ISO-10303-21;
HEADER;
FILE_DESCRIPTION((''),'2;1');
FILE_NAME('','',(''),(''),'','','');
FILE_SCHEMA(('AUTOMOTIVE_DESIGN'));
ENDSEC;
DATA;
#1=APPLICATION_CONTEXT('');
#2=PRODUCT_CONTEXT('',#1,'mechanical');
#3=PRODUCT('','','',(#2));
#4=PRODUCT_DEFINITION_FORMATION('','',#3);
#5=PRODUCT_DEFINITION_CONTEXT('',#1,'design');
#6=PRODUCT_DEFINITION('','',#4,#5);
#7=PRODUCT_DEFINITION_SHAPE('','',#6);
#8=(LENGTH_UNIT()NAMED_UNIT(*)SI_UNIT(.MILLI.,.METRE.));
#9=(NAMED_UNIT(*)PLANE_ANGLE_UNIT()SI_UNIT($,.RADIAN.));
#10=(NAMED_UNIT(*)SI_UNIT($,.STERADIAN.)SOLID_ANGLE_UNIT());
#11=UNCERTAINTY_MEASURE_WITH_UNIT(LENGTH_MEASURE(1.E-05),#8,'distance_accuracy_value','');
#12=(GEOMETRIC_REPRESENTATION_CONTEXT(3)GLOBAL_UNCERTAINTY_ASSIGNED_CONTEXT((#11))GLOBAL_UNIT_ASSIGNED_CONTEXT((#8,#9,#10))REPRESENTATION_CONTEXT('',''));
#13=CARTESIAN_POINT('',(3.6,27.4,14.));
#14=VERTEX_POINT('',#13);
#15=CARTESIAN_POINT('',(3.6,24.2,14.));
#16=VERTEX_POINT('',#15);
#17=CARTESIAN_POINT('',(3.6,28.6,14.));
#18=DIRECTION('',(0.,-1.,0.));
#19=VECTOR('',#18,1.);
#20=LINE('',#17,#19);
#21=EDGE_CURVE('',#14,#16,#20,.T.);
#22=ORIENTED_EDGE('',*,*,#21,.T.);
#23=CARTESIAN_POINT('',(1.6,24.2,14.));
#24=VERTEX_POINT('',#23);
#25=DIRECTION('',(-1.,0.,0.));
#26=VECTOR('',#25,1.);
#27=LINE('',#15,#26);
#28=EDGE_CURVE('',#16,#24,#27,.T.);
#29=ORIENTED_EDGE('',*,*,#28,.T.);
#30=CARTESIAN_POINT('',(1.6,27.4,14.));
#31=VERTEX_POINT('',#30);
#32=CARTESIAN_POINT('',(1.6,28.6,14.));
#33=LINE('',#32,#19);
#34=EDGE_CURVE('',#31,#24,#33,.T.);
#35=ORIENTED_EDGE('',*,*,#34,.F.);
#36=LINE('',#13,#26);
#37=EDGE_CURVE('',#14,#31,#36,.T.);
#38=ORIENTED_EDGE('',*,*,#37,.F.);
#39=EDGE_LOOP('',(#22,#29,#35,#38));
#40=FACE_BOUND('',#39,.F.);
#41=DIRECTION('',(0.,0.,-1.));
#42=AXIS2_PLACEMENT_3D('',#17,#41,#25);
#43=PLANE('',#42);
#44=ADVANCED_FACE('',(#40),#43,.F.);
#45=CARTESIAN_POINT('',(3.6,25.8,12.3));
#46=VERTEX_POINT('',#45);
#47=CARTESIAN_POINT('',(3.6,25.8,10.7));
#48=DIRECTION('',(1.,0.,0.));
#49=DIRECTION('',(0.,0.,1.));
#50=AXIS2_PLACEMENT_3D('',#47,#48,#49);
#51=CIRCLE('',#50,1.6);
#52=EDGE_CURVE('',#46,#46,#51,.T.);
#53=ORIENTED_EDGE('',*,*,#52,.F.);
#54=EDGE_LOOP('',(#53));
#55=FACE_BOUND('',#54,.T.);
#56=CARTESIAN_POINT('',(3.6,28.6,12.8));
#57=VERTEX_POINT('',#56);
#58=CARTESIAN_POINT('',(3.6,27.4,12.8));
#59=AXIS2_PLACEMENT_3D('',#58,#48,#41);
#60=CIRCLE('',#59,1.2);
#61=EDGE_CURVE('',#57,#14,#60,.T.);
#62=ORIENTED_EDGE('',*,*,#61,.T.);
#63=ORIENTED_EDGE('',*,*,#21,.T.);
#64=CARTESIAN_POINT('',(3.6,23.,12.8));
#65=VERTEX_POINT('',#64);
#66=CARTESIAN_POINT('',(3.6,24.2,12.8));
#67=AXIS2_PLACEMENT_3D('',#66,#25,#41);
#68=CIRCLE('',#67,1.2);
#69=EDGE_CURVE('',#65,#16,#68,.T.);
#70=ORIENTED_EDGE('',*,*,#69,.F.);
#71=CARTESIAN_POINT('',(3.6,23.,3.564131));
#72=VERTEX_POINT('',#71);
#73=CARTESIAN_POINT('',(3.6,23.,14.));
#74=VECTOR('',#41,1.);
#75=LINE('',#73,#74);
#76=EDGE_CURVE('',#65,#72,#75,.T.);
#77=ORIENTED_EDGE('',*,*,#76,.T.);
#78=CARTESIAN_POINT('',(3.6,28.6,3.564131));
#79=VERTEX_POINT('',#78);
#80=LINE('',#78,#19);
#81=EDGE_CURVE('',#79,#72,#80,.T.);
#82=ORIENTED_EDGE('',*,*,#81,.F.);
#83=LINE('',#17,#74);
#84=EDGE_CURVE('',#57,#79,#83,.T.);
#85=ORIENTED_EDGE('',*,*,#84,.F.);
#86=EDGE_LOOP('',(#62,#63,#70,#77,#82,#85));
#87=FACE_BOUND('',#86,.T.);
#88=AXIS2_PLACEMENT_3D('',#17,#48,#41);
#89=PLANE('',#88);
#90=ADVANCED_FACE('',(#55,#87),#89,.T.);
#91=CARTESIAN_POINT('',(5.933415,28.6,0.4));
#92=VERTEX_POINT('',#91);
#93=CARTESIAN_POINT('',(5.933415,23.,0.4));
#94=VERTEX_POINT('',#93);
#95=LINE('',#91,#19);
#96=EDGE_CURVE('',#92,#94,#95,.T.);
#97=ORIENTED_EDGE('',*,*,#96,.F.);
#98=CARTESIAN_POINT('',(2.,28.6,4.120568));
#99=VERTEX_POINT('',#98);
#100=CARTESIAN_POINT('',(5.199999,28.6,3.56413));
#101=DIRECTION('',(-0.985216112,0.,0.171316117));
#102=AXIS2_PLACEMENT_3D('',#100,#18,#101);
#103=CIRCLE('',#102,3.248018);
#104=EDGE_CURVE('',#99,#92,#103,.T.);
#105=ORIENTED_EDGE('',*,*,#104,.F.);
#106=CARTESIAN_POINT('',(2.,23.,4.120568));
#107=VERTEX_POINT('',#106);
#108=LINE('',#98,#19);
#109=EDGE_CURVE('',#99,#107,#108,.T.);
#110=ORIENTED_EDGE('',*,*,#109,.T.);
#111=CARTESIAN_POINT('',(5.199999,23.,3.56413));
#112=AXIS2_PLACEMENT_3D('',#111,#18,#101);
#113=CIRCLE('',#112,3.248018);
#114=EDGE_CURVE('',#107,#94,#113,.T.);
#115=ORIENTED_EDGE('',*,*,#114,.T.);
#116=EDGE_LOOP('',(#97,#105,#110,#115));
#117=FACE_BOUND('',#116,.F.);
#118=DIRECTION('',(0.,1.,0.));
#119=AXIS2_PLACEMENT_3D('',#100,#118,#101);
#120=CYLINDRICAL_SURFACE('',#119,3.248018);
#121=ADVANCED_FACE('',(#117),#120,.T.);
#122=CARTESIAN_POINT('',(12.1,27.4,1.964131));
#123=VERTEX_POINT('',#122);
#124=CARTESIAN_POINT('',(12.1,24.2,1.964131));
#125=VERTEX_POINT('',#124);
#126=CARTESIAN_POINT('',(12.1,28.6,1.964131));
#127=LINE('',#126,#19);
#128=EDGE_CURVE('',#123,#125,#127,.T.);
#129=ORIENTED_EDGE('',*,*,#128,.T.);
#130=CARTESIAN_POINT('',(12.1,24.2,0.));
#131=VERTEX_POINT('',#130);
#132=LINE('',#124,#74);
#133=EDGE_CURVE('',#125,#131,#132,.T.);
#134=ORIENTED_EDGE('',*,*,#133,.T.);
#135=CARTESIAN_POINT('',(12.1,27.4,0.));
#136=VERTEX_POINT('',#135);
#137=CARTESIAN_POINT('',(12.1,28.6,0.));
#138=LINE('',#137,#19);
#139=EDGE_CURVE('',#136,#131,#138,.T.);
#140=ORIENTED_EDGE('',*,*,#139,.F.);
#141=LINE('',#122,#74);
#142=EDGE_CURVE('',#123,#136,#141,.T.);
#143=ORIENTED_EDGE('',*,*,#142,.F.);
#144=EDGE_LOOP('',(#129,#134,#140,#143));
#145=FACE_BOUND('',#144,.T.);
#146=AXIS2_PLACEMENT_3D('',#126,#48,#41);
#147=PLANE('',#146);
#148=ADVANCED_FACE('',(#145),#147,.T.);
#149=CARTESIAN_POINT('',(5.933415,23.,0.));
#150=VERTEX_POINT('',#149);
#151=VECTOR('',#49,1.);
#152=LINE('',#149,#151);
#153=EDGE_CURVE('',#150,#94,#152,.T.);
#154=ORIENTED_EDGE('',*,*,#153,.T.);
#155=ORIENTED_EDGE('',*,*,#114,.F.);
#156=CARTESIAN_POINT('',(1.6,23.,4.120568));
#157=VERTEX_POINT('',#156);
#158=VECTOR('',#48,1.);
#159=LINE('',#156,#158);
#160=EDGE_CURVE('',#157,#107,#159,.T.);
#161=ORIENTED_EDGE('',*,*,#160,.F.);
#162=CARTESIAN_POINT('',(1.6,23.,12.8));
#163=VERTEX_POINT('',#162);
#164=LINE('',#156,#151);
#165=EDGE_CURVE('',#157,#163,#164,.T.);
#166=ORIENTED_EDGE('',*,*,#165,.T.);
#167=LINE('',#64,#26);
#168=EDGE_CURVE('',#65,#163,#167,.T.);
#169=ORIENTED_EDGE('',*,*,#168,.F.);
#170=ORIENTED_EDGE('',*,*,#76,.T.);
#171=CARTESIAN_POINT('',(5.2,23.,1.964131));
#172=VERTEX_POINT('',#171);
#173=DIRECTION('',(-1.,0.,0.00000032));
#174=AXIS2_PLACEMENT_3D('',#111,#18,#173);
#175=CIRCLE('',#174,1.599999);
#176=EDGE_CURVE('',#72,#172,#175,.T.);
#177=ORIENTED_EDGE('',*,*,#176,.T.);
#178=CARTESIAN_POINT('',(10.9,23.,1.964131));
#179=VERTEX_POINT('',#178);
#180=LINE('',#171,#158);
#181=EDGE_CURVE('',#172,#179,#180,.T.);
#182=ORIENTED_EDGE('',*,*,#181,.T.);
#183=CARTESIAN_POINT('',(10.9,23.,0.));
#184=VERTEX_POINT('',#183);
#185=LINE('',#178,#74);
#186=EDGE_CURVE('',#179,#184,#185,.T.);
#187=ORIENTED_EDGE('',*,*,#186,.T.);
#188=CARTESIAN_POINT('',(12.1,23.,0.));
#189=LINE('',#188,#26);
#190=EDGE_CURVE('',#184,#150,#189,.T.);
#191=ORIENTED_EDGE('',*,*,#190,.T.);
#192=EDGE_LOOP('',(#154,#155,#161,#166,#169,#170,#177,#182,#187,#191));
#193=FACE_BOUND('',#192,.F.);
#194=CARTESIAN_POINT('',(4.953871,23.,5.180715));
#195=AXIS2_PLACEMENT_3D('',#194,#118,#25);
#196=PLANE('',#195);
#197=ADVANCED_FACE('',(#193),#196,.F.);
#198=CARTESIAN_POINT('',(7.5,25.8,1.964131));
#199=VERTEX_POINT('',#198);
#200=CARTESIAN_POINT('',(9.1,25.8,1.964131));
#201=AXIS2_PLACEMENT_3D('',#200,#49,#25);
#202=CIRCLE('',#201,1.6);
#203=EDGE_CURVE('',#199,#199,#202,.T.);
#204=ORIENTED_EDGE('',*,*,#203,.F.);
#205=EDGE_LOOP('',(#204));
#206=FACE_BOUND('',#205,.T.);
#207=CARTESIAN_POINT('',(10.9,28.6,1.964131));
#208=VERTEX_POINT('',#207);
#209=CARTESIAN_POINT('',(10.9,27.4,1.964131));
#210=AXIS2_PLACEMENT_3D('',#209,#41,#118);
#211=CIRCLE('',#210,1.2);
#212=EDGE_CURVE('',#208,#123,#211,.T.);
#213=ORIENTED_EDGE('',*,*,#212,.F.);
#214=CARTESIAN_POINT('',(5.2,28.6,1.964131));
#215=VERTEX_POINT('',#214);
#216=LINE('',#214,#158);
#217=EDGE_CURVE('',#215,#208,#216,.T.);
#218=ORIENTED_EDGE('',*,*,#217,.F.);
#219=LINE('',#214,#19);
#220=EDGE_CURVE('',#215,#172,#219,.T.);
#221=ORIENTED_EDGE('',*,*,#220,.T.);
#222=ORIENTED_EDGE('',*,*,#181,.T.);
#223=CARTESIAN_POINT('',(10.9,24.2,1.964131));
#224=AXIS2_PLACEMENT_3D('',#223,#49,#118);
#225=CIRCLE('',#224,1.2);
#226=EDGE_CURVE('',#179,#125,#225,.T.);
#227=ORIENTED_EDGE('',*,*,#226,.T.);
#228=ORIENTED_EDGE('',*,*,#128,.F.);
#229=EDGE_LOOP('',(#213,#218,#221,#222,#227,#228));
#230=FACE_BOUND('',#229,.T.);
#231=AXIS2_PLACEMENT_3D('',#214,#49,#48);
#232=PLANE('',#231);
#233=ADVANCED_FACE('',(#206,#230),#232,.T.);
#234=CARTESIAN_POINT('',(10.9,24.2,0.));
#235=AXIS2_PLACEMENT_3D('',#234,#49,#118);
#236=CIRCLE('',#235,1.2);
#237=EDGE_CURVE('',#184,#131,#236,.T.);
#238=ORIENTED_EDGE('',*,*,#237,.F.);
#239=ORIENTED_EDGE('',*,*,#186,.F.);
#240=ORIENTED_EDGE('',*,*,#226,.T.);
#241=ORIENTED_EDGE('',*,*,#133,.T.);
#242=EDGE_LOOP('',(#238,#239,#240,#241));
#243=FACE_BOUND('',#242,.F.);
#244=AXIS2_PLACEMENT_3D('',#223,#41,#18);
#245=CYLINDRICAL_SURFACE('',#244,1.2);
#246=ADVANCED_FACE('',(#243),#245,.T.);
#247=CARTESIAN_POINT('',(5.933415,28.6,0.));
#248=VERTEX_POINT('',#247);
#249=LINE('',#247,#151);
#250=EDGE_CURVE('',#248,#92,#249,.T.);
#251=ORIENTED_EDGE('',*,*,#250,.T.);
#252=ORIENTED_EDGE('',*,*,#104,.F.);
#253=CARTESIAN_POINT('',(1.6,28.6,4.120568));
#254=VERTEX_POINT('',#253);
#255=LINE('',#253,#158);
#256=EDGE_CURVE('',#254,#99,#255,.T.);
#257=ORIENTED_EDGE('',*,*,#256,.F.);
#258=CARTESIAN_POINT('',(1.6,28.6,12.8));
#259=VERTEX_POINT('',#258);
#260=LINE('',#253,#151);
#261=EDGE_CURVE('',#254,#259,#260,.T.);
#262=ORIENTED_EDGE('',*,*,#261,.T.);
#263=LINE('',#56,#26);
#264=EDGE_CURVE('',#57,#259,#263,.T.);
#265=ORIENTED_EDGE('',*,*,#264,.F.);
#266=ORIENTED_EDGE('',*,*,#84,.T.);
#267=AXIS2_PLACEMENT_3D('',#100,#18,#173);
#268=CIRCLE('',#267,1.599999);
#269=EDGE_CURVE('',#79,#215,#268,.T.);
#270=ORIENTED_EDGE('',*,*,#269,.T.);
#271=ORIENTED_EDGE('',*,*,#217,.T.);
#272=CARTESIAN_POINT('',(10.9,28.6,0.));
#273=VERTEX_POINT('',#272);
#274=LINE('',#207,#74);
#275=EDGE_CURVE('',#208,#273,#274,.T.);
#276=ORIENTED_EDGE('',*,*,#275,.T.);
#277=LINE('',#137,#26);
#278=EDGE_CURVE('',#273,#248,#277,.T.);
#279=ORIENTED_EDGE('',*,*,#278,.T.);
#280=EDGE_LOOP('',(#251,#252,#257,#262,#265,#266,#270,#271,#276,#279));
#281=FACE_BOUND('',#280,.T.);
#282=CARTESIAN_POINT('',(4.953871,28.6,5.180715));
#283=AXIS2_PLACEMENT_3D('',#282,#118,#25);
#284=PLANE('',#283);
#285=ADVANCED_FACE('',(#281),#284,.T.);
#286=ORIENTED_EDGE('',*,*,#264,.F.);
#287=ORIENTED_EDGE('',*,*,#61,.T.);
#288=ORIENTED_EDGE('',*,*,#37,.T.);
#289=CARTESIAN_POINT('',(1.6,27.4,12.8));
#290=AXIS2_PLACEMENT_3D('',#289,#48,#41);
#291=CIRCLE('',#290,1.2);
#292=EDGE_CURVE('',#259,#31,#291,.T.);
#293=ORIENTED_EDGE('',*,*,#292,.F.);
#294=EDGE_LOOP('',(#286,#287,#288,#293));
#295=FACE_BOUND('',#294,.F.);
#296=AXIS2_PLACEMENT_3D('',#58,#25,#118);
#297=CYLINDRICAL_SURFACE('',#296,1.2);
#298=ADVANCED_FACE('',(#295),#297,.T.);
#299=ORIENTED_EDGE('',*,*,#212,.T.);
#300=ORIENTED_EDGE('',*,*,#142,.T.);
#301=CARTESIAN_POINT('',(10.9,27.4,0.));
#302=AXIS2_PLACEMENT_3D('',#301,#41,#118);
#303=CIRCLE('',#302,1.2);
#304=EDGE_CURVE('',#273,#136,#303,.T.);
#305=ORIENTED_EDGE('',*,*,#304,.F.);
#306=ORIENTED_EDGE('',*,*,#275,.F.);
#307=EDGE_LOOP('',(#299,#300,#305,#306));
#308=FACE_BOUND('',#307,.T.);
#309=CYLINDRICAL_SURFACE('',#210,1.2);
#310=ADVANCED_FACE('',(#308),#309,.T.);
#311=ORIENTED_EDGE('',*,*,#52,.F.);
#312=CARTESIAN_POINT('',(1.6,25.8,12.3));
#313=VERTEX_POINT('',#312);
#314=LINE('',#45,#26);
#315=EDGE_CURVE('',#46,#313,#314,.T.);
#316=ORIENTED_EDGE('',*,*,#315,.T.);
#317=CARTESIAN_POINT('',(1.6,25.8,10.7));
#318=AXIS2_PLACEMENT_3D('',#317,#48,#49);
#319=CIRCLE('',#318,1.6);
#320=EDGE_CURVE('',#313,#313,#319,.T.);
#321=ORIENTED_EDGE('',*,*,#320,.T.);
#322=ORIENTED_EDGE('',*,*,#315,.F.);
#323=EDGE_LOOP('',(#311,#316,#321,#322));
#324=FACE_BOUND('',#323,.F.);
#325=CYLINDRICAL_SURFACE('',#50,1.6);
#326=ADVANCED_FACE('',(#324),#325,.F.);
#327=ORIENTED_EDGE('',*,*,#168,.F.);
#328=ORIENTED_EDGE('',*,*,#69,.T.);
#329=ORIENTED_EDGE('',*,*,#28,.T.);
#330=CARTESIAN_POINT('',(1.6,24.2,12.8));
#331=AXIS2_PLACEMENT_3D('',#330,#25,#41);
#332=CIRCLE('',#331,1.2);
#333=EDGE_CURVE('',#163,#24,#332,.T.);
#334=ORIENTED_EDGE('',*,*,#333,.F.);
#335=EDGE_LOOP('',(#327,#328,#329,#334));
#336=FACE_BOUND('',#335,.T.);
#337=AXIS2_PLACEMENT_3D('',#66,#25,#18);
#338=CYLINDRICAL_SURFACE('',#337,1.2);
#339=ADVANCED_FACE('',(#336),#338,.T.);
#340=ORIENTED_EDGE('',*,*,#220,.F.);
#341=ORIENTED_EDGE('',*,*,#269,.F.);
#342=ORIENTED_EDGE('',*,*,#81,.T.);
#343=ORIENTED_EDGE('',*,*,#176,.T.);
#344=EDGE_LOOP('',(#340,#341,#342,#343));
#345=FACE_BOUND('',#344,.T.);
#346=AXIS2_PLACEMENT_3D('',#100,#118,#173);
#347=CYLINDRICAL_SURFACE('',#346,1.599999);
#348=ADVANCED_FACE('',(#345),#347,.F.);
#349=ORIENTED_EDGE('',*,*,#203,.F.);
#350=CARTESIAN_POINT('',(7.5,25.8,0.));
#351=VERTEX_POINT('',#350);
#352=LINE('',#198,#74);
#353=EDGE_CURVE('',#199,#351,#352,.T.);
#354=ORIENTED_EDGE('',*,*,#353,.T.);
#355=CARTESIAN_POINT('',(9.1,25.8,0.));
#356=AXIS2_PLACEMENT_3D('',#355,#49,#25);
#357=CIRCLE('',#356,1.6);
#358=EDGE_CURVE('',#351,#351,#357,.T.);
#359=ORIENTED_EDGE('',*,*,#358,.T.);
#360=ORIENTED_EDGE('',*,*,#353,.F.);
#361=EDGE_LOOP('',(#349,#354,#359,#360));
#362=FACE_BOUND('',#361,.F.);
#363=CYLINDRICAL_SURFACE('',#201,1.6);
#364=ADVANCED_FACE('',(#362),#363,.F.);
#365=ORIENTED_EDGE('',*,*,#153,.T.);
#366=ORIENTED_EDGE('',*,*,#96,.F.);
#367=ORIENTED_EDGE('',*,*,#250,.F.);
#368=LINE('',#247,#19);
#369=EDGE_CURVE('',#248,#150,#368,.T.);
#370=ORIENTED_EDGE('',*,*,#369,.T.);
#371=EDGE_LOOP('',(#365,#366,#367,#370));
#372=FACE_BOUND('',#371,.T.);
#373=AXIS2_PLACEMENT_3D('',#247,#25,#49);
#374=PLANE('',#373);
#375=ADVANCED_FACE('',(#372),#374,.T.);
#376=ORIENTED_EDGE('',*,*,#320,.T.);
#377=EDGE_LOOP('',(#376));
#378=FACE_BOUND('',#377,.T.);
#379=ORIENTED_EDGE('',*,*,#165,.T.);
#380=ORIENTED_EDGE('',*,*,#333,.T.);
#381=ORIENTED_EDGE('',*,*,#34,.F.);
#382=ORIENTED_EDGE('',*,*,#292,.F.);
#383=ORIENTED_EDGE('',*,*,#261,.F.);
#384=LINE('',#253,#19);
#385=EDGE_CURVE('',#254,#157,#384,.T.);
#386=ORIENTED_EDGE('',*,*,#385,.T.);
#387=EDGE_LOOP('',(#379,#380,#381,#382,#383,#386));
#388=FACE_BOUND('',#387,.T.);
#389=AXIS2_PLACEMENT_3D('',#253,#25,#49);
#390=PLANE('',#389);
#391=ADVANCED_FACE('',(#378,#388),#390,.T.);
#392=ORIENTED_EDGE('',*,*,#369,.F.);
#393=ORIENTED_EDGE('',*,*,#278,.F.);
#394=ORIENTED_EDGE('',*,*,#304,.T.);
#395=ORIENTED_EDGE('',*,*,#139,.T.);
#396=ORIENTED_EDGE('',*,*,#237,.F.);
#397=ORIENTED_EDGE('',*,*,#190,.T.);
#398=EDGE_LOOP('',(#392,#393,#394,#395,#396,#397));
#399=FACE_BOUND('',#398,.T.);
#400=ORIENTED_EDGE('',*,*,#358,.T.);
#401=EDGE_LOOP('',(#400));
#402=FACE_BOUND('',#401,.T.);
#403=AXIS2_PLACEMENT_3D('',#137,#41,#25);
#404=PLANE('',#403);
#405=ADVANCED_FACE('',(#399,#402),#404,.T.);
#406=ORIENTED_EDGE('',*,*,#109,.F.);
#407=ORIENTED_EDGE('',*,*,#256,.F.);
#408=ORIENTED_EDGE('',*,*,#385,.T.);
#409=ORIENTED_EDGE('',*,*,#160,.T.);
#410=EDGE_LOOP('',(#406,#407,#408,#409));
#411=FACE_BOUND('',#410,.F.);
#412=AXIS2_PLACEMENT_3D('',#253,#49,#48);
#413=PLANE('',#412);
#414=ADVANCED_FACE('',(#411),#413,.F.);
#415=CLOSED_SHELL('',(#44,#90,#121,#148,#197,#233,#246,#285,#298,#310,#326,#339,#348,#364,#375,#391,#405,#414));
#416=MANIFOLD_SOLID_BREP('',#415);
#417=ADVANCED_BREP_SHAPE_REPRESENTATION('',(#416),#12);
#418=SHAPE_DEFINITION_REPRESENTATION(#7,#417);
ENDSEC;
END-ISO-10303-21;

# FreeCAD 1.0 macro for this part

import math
import FreeCAD as App
import Part
import Sketcher

V = App.Vector
Q = App.Units.Quantity


def edges_at(feature, points):
    """Names of the edges that pass closest to the given points."""
    edges = feature.Shape.Edges
    near = lambda p: min(range(len(edges)), key=lambda i: edges[i].distToShape(Part.Vertex(*p))[0])
    return sorted({f"Edge{near(p) + 1}" for p in points})

doc = App.newDocument("Part")
body = doc.addObject("PartDesign::Body", "Body")

sketch1 = body.newObject("Sketcher::SketchObject", "Sketch")
sketch1.AttachmentSupport = (doc.getObject("XZ_Plane"), [""])
sketch1.MapMode = "FlatFace"
sketch1.addGeometry([
    Part.LineSegment(V(0, 14, 0), V(0, 4.12, 0)),
    Part.LineSegment(V(0, 4.12, 0), V(0.4, 4.12, 0)),
    Part.ArcOfCircle(Part.Circle(V(3.6, 3.56, 0), V(0, 0, 1), 3.25), math.radians(170), math.radians(283)),
    Part.LineSegment(V(4.33, 0.4, 0), V(4.33, 0, 0)),
    Part.LineSegment(V(4.33, 0, 0), V(10.5, 0, 0)),
    Part.LineSegment(V(10.5, 0, 0), V(10.5, 1.96, 0)),
    Part.LineSegment(V(10.5, 1.96, 0), V(3.6, 1.96, 0)),
    Part.ArcOfCircle(Part.Circle(V(3.6, 3.56, 0), V(0, 0, 1), 1.6), math.radians(180), math.radians(270)),
    Part.LineSegment(V(2, 3.56, 0), V(2, 14, 0)),
    Part.LineSegment(V(2, 14, 0), V(0, 14, 0)),
], False)
sketch1.addConstraint([
    Sketcher.Constraint("Coincident", 0, 2, 1, 1),
    Sketcher.Constraint("Coincident", 1, 2, 2, 1),
    Sketcher.Constraint("Coincident", 2, 2, 3, 1),
    Sketcher.Constraint("Coincident", 3, 2, 4, 1),
    Sketcher.Constraint("Coincident", 4, 2, 5, 1),
    Sketcher.Constraint("Coincident", 5, 2, 6, 1),
    Sketcher.Constraint("Tangent", 6, 2, 7, 2),
    Sketcher.Constraint("Tangent", 7, 1, 8, 1),
    Sketcher.Constraint("Coincident", 8, 2, 9, 1),
    Sketcher.Constraint("Coincident", 9, 2, 0, 1),
    Sketcher.Constraint("Vertical", 0),
    Sketcher.Constraint("Horizontal", 1),
    Sketcher.Constraint("Vertical", 3),
    Sketcher.Constraint("Horizontal", 4),
    Sketcher.Constraint("Vertical", 5),
    Sketcher.Constraint("Horizontal", 6),
    Sketcher.Constraint("Vertical", 8),
    Sketcher.Constraint("Horizontal", 9),
    Sketcher.Constraint("Coincident", 7, 3, 2, 3),
    Sketcher.Constraint("PointOnObject", 0, 2, -2),
    Sketcher.Constraint("PointOnObject", 3, 2, -1),
    Sketcher.Constraint("Equal", 1, 3),
    Sketcher.Constraint("Radius", 7, Q("1.599999 mm")),
    Sketcher.Constraint("DistanceX", 9, 2, 9, 1, Q("2 mm")),
    Sketcher.Constraint("DistanceX", 1, 1, 1, 2, Q("0.4 mm")),
    Sketcher.Constraint("DistanceX", 6, 2, 6, 1, Q("6.9 mm")),
    Sketcher.Constraint("DistanceY", -1, 1, 8, 2, Q("14 mm")),
    Sketcher.Constraint("Radius", 2, Q("3.248018 mm")),
    Sketcher.Constraint("DistanceY", 5, 1, 5, 2, Q("1.964131 mm")),
])
pad1 = body.newObject("PartDesign::Pad", "Pad")
pad1.Profile = sketch1
pad1.Length = 5.6

sketch2 = body.newObject("Sketcher::SketchObject", "Sketch001")
sketch2.AttachmentSupport = (doc.getObject("YZ_Plane"), [""])
sketch2.MapMode = "FlatFace"
sketch2.AttachmentOffset = App.Placement(V(0, 0, 2), App.Rotation())
sketch2.addGeometry(Part.Circle(V(-2.8, 10.7, 0), V(0, 0, 1), 1.6), False)
sketch2.addConstraint([
    Sketcher.Constraint("Diameter", 0, Q("3.2 mm")),
    Sketcher.Constraint("DistanceX", 0, 3, -1, 1, Q("2.8 mm")),
    Sketcher.Constraint("DistanceY", -1, 1, 0, 3, Q("10.7 mm")),
])
pocket1 = body.newObject("PartDesign::Pocket", "Pocket")
pocket1.Profile = sketch2
pocket1.Length = 2

sketch3 = body.newObject("Sketcher::SketchObject", "Sketch002")
sketch3.AttachmentSupport = (doc.getObject("XY_Plane"), [""])
sketch3.MapMode = "FlatFace"
sketch3.AttachmentOffset = App.Placement(V(0, 0, 1.964131), App.Rotation())
sketch3.addGeometry(Part.Circle(V(7.5, -2.8, 0), V(0, 0, 1), 1.6), False)
sketch3.addConstraint([
    Sketcher.Constraint("Diameter", 0, Q("3.2 mm")),
    Sketcher.Constraint("DistanceX", -1, 1, 0, 3, Q("7.5 mm")),
    Sketcher.Constraint("DistanceY", 0, 3, -1, 1, Q("2.8 mm")),
])
pocket2 = body.newObject("PartDesign::Pocket", "Pocket001")
pocket2.Profile = sketch3
pocket2.Length = 2
doc.recompute()

fillet = body.newObject("PartDesign::Fillet", "Fillet")
fillet.Base = (pocket2, edges_at(pocket2, [
    (1, 0, 14),
    (1, -5.6, 14),
    (10.5, -5.6, 0.982),
    (10.5, 0, 0.982),
]))
fillet.Radius = 1.2
body2 = doc.addObject("PartDesign::Body", "Body001")
doc.recompute()

body.Placement = App.Placement(V(1.6, 28.6, 0), App.Rotation(V(0, 0, 1), 0))
boolean = body2.newObject("PartDesign::Boolean", "Boolean")
boolean.Type = "Fuse"
boolean.addObjects([body])

doc.recompute()
